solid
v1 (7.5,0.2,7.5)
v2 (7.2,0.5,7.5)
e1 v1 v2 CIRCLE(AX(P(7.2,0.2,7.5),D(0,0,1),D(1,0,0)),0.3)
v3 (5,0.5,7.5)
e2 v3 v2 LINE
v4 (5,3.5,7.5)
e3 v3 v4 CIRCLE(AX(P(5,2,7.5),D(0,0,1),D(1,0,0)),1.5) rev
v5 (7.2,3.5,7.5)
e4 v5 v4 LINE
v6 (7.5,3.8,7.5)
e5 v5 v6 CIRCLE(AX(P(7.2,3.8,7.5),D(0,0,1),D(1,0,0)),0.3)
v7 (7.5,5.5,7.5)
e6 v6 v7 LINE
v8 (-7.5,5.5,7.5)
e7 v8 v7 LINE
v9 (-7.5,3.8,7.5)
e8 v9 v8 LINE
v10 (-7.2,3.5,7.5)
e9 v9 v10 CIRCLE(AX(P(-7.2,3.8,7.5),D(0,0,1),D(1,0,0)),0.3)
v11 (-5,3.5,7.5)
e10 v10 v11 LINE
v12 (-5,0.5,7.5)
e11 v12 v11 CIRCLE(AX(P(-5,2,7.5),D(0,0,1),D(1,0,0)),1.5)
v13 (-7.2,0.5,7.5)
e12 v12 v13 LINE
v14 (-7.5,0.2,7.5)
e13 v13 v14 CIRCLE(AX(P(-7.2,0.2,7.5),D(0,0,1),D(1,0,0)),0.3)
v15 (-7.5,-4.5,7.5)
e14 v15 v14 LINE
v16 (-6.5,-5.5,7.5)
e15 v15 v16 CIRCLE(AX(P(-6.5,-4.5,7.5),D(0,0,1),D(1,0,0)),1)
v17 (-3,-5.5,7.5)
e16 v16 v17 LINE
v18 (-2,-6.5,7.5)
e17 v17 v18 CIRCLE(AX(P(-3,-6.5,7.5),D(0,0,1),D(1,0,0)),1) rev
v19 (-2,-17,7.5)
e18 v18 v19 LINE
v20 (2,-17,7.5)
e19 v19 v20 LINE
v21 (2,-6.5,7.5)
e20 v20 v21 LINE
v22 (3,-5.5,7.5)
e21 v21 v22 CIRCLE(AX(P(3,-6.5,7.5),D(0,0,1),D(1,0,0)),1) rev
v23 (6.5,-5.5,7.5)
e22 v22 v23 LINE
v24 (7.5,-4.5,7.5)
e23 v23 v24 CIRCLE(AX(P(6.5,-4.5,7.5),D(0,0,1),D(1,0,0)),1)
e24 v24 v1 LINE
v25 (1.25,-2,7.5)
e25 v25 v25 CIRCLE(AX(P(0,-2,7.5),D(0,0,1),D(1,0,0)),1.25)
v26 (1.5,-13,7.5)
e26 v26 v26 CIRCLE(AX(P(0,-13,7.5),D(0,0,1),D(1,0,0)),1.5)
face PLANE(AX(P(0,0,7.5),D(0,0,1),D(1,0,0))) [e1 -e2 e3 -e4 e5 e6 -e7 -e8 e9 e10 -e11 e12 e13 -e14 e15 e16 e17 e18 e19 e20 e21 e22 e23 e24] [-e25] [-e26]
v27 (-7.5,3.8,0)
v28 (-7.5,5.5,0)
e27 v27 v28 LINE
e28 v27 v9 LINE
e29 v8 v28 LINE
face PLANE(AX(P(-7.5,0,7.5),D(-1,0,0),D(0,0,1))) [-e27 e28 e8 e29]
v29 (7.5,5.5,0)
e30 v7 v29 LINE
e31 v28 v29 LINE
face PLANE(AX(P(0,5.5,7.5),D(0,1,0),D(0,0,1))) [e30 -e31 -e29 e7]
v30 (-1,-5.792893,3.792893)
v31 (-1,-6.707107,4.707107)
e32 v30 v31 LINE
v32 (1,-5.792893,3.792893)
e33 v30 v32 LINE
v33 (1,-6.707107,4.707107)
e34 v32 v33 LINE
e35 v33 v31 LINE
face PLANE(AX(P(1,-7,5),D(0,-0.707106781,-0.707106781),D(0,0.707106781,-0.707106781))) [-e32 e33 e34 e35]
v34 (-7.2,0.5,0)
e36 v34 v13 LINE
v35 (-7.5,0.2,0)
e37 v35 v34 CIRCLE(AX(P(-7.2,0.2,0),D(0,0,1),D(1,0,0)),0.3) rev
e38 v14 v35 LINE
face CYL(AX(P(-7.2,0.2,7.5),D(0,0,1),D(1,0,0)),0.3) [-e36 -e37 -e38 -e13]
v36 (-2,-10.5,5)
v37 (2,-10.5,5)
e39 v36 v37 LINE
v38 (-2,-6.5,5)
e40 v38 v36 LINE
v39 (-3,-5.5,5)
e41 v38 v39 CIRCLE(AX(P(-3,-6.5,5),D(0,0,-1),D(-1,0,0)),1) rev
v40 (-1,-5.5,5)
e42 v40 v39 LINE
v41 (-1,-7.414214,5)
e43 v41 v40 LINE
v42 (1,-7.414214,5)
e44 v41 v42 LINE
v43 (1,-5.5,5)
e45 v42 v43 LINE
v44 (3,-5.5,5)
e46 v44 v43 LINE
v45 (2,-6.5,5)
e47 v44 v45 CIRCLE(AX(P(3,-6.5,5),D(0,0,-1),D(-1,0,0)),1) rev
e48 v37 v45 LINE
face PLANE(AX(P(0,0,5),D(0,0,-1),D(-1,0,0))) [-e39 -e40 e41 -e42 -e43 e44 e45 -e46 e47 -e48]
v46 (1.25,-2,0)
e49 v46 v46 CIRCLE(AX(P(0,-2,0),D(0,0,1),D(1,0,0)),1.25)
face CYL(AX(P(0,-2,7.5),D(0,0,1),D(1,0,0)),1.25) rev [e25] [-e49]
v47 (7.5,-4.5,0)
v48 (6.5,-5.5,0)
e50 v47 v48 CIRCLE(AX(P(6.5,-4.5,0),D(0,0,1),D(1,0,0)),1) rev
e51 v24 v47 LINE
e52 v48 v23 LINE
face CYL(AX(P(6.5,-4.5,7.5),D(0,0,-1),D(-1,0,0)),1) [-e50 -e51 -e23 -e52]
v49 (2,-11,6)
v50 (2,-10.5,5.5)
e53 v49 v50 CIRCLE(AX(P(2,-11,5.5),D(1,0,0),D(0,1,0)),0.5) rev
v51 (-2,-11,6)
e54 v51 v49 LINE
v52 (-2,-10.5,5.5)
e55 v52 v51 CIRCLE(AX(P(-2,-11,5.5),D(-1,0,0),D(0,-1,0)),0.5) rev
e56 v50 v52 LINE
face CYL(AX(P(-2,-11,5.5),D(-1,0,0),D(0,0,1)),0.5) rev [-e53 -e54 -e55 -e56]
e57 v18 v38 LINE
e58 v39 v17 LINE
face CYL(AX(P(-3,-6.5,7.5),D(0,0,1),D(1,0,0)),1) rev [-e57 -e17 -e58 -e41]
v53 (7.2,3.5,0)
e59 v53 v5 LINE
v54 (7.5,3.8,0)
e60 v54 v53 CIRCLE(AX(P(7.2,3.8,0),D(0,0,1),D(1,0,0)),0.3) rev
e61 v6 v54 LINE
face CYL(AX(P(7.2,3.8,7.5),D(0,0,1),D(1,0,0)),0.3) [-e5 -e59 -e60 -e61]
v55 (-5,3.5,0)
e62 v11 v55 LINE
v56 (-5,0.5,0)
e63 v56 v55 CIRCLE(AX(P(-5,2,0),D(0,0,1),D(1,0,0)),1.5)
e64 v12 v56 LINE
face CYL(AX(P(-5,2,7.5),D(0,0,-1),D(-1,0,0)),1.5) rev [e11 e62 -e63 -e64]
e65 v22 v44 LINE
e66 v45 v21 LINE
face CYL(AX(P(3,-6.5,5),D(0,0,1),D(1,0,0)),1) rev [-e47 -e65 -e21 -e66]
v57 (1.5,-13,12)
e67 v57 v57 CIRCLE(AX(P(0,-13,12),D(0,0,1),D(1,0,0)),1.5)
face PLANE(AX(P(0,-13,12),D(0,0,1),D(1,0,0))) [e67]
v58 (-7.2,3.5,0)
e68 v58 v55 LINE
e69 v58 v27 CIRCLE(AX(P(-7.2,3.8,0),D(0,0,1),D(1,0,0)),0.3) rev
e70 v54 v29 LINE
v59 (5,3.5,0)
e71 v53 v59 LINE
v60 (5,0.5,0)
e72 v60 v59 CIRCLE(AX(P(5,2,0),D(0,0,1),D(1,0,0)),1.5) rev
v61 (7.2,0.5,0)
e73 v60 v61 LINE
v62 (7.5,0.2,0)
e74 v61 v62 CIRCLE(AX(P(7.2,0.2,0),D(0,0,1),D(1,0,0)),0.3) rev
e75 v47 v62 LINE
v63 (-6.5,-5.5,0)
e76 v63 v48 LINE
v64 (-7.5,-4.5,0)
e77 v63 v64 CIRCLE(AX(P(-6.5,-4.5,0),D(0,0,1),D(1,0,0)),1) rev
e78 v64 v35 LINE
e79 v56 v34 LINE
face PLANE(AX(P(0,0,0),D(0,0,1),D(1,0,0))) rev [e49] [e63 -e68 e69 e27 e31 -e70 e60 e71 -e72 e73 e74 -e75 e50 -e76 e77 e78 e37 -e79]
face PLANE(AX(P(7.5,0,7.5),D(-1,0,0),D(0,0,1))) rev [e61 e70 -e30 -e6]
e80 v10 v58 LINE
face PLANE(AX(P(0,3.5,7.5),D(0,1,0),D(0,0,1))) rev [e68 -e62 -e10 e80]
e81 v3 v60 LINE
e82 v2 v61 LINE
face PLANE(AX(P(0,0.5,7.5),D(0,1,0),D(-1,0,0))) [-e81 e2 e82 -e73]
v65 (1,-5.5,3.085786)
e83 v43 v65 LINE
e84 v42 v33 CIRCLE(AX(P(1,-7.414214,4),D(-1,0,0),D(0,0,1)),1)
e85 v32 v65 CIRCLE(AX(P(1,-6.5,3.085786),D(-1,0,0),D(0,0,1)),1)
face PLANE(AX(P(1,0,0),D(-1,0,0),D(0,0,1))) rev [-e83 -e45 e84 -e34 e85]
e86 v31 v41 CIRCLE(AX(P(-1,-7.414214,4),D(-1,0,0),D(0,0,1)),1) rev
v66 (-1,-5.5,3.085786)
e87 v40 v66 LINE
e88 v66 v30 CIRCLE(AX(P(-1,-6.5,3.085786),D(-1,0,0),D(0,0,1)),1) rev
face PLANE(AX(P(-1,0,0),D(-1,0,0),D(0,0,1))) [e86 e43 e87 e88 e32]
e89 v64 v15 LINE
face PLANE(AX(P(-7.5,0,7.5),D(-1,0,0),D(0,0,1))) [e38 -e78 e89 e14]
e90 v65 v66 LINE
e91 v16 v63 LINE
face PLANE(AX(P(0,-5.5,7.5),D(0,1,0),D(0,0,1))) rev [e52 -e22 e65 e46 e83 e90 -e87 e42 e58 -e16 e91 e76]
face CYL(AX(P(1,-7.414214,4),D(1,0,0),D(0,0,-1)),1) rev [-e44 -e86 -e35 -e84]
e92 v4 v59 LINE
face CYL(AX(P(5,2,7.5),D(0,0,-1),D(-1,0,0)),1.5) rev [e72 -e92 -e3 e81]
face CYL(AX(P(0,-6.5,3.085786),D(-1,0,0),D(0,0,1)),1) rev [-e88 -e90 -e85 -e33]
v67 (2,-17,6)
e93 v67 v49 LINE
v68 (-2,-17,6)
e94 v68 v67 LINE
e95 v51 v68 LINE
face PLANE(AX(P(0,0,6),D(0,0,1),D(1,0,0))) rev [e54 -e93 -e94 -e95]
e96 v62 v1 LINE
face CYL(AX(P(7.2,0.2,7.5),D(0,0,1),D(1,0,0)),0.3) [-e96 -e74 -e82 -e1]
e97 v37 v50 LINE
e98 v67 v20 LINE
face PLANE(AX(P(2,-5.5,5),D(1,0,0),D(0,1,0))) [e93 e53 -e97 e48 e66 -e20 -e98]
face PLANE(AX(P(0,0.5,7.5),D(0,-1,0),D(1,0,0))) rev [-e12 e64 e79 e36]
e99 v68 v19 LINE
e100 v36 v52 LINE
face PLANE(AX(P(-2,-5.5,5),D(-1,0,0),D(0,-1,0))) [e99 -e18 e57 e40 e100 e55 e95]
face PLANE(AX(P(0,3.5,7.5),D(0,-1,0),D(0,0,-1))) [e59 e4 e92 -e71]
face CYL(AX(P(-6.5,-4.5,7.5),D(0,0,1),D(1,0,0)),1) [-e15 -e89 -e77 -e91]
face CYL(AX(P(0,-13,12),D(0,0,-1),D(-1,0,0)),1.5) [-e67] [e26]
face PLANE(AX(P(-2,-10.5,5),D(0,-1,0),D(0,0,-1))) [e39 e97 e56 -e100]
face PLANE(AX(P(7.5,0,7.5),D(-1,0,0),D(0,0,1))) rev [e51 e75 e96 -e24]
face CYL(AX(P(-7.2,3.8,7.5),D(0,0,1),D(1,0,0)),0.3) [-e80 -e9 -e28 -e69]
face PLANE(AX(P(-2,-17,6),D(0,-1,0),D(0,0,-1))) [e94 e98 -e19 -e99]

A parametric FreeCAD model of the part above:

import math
import FreeCAD as App
import Part
import Sketcher
from FreeCAD import Vector


def edges_at(feature, points):
    """Names of the edges that pass closest to the given points."""
    edges = feature.Shape.Edges
    near = lambda p: min(range(len(edges)), key=lambda i: edges[i].distToShape(Part.Vertex(*p))[0])
    return sorted({f"Edge{near(p) + 1}" for p in points})

doc = App.newDocument("Part")
body = doc.addObject("PartDesign::Body", "Body")

# Sketch on XY plane
sketch1 = doc.addObject("Sketcher::SketchObject", "Sketch")
body.addObject(sketch1)
sketch1.AttachmentSupport = (doc.XY_Plane, [""])
sketch1.MapMode = "FlatFace"
sketch1.addGeometry([
    Part.LineSegment(Vector(-7.5, 0.5, 0), Vector(-7.5, -5.5, 0)),  # 0
    Part.LineSegment(Vector(-7.5, -5.5, 0), Vector(7.5, -5.5, 0)),  # 1
    Part.LineSegment(Vector(7.5, -5.5, 0), Vector(7.5, 0.5, 0)),  # 2
    Part.LineSegment(Vector(7.5, 0.5, 0), Vector(5, 0.5, 0)),  # 3
    Part.ArcOfCircle(Part.Circle(Vector(5, 2, 0), Vector(0, 0, 1), 1.5), math.radians(90), math.radians(270)),  # 4
    Part.LineSegment(Vector(5, 3.5, 0), Vector(7.5, 3.5, 0)),  # 5
    Part.LineSegment(Vector(7.5, 3.5, 0), Vector(7.5, 5.5, 0)),  # 6
    Part.LineSegment(Vector(7.5, 5.5, 0), Vector(-7.5, 5.5, 0)),  # 7
    Part.LineSegment(Vector(-7.5, 5.5, 0), Vector(-7.5, 3.5, 0)),  # 8
    Part.LineSegment(Vector(-7.5, 3.5, 0), Vector(-5, 3.5, 0)),  # 9
    Part.ArcOfCircle(Part.Circle(Vector(-5, 2, 0), Vector(0, 0, 1), 1.5), math.radians(-90), math.radians(90)),  # 10
    Part.LineSegment(Vector(-5, 0.5, 0), Vector(-7.5, 0.5, 0)),  # 11
], False)
sketch1.addConstraint([
    Sketcher.Constraint("Coincident", 0, 2, 1, 1),
    Sketcher.Constraint("Coincident", 1, 2, 2, 1),
    Sketcher.Constraint("Coincident", 2, 2, 3, 1),
    Sketcher.Constraint("Tangent", 3, 2, 4, 2),
    Sketcher.Constraint("Tangent", 4, 1, 5, 1),
    Sketcher.Constraint("Coincident", 5, 2, 6, 1),
    Sketcher.Constraint("Coincident", 6, 2, 7, 1),
    Sketcher.Constraint("Coincident", 7, 2, 8, 1),
    Sketcher.Constraint("Coincident", 8, 2, 9, 1),
    Sketcher.Constraint("Tangent", 9, 2, 10, 2),
    Sketcher.Constraint("Tangent", 10, 1, 11, 1),
    Sketcher.Constraint("Coincident", 11, 2, 0, 1),
    Sketcher.Constraint("Vertical", 0),
    Sketcher.Constraint("Horizontal", 1),
    Sketcher.Constraint("Vertical", 2),
    Sketcher.Constraint("Horizontal", 3),
    Sketcher.Constraint("Horizontal", 5),
    Sketcher.Constraint("Vertical", 6),
    Sketcher.Constraint("Horizontal", 7),
    Sketcher.Constraint("Vertical", 8),
    Sketcher.Constraint("Horizontal", 9),
    Sketcher.Constraint("Horizontal", 11),
    Sketcher.Constraint("Equal", 4, 10),
    Sketcher.Constraint("Symmetric", 0, 2, 6, 2, -1, 1),
    Sketcher.Constraint("Symmetric", 4, 3, 10, 3, -2),
    Sketcher.Constraint("Vertical", 2, 2, 5, 2),
    Sketcher.Constraint("Vertical", 0, 2, 7, 2),
    Sketcher.Constraint("Radius", 4, 1.5),
    Sketcher.Constraint("DistanceX", 1, 1, 1, 2, 15.0),
    Sketcher.Constraint("DistanceY", 0, 2, 0, 1, 6.0),
    Sketcher.Constraint("DistanceY", 6, 1, 6, 2, 2.0),
    Sketcher.Constraint("DistanceX", 3, 2, 3, 1, 2.5),
])
pad1 = doc.addObject("PartDesign::Pad", "Pad")
body.addObject(pad1)
pad1.Profile = sketch1
pad1.Length = 7.5
doc.recompute()

fillet = doc.addObject("PartDesign::Fillet", "Fillet")
body.addObject(fillet)
fillet.Base = (pad1, edges_at(pad1, [
    (7.5, 0.5, 3.75),
    (-7.5, 0.5, 3.75),
    (-7.5, 3.5, 3.75),
    (7.5, 3.5, 3.75),
]))
fillet.Radius = 0.3
doc.recompute()

fillet2 = doc.addObject("PartDesign::Fillet", "Fillet001")
body.addObject(fillet2)
fillet2.Base = (fillet, edges_at(fillet, [(7.5, -5.5, 3.75), (-7.5, -5.5, 3.75)]))
fillet2.Radius = 1

# Sketch on XY plane
sketch2 = doc.addObject("Sketcher::SketchObject", "Sketch001")
body.addObject(sketch2)
sketch2.AttachmentSupport = (doc.XY_Plane, [""])
sketch2.MapMode = "FlatFace"
sketch2.AttachmentOffset = App.Placement(Vector(0, 0, 7.5), App.Rotation())
sketch2.addGeometry(Part.Circle(Vector(0, -2, 0), Vector(0, 0, 1), 1.2), False)
sketch2.addConstraint([
    Sketcher.Constraint("PointOnObject", 0, 3, -2),
    Sketcher.Constraint("Diameter", 0, 2.5),
    Sketcher.Constraint("DistanceY", 0, 3, -1, 1, 2.0),
])
doc.recompute()
hole = doc.addObject("PartDesign::Hole", "Hole")
body.addObject(hole)
hole.Profile = sketch2
hole.ThreadType = "None"
hole.Diameter = 2.5
hole.DepthType = "ThroughAll"

# Sketch on XY plane
sketch3 = doc.addObject("Sketcher::SketchObject", "Sketch002")
body.addObject(sketch3)
sketch3.AttachmentSupport = (doc.XY_Plane, [""])
sketch3.MapMode = "FlatFace"
sketch3.AttachmentOffset = App.Placement(Vector(0, 0, 7.5), App.Rotation())
sketch3.addGeometry([
    Part.LineSegment(Vector(-2, -5.5, 0), Vector(-2, -10.5, 0)),
    Part.LineSegment(Vector(-2, -10.5, 0), Vector(2, -10.5, 0)),
    Part.LineSegment(Vector(2, -10.5, 0), Vector(2, -5.5, 0)),
    Part.LineSegment(Vector(2, -5.5, 0), Vector(-2, -5.5, 0)),
], False)
sketch3.addConstraint([
    Sketcher.Constraint("Coincident", 0, 2, 1, 1),
    Sketcher.Constraint("Coincident", 1, 2, 2, 1),
    Sketcher.Constraint("Coincident", 2, 2, 3, 1),
    Sketcher.Constraint("Coincident", 3, 2, 0, 1),
    Sketcher.Constraint("Vertical", 0),
    Sketcher.Constraint("Horizontal", 1),
    Sketcher.Constraint("Vertical", 2),
    Sketcher.Constraint("Horizontal", 3),
    Sketcher.Constraint("DistanceX", 1, 1, 1, 2, 4.0),
    Sketcher.Constraint("DistanceY", 0, 2, 0, 1, 5.0),
    Sketcher.Constraint("DistanceX", 0, 2, -1, 1, 2.0),
    Sketcher.Constraint("DistanceY", 0, 2, -1, 1, 10.5),
])
pad2 = doc.addObject("PartDesign::Pad", "Pad001")
body.addObject(pad2)
pad2.Profile = sketch3
pad2.Length = 2.5
pad2.Reversed = True

# Sketch on XY plane
sketch4 = doc.addObject("Sketcher::SketchObject", "Sketch003")
body.addObject(sketch4)
sketch4.AttachmentSupport = (doc.XY_Plane, [""])
sketch4.MapMode = "FlatFace"
sketch4.AttachmentOffset = App.Placement(Vector(0, 0, 7.5), App.Rotation())
sketch4.addGeometry([
    Part.LineSegment(Vector(-2, -10.5, 0), Vector(-2, -17, 0)),
    Part.LineSegment(Vector(-2, -17, 0), Vector(2, -17, 0)),
    Part.LineSegment(Vector(2, -17, 0), Vector(2, -10.5, 0)),
    Part.LineSegment(Vector(2, -10.5, 0), Vector(-2, -10.5, 0)),
], False)
sketch4.addConstraint([
    Sketcher.Constraint("Coincident", 0, 2, 1, 1),
    Sketcher.Constraint("Coincident", 1, 2, 2, 1),
    Sketcher.Constraint("Coincident", 2, 2, 3, 1),
    Sketcher.Constraint("Coincident", 3, 2, 0, 1),
    Sketcher.Constraint("Vertical", 0),
    Sketcher.Constraint("Horizontal", 1),
    Sketcher.Constraint("Vertical", 2),
    Sketcher.Constraint("Horizontal", 3),
    Sketcher.Constraint("DistanceX", 1, 1, 1, 2, 4.0),
    Sketcher.Constraint("DistanceY", 0, 2, 0, 1, 6.5),
    Sketcher.Constraint("DistanceX", 0, 2, -1, 1, 2.0),
    Sketcher.Constraint("DistanceY", 0, 2, -1, 1, 17.0),
])
pad3 = doc.addObject("PartDesign::Pad", "Pad002")
body.addObject(pad3)
pad3.Profile = sketch4
pad3.Length = 1.5
pad3.Reversed = True
doc.recompute()

fillet3 = doc.addObject("PartDesign::Fillet", "Fillet002")
body.addObject(fillet3)
fillet3.Base = (pad3, edges_at(pad3, [(0, -10.5, 6)]))
fillet3.Radius = 0.5

# Sketch on YZ plane
sketch5 = doc.addObject("Sketcher::SketchObject", "Sketch004")
body.addObject(sketch5)
sketch5.AttachmentSupport = (doc.YZ_Plane, [""])
sketch5.MapMode = "FlatFace"
sketch5.addGeometry([
    Part.LineSegment(Vector(-5.5, 3.5, 0), Vector(-7, 5, 0)),
    Part.LineSegment(Vector(-7, 5, 0), Vector(-5.5, 5, 0)),
    Part.LineSegment(Vector(-5.5, 5, 0), Vector(-5.5, 3.5, 0)),
], False)
sketch5.addConstraint([
    Sketcher.Constraint("Coincident", 0, 2, 1, 1),
    Sketcher.Constraint("Coincident", 1, 2, 2, 1),
    Sketcher.Constraint("Coincident", 2, 2, 0, 1),
    Sketcher.Constraint("Horizontal", 1),
    Sketcher.Constraint("Vertical", 2),
    Sketcher.Constraint("Equal", 1, 2),
    Sketcher.Constraint("DistanceX", 1, 1, 1, 2, 1.5),
    Sketcher.Constraint("DistanceX", 0, 2, -1, 1, 7.0),
    Sketcher.Constraint("DistanceY", -1, 1, 0, 2, 5.0),
])
pad4 = doc.addObject("PartDesign::Pad", "Pad003")
body.addObject(pad4)
pad4.Profile = sketch5
pad4.Type = "TwoLengths"
pad4.Length = 1
pad4.Length2 = 1
pad4.Reversed = True
doc.recompute()

fillet4 = doc.addObject("PartDesign::Fillet", "Fillet003")
body.addObject(fillet4)
fillet4.Base = (pad4, edges_at(pad4, [
    (0, -7, 5),
    (0, -5.5, 3.5),
    (-2, -5.5, 6.25),
    (2, -5.5, 6.25),
]))
fillet4.Radius = 1

# Sketch on XY plane
sketch6 = doc.addObject("Sketcher::SketchObject", "Sketch005")
body.addObject(sketch6)
sketch6.AttachmentSupport = (doc.XY_Plane, [""])
sketch6.MapMode = "FlatFace"
sketch6.AttachmentOffset = App.Placement(Vector(0, 0, 7.5), App.Rotation())
sketch6.addGeometry(Part.Circle(Vector(0, -13, 0), Vector(0, 0, 1), 1.5), False)
sketch6.addConstraint([
    Sketcher.Constraint("PointOnObject", 0, 3, -2),
    Sketcher.Constraint("Diameter", 0, 3.0),
    Sketcher.Constraint("DistanceY", 0, 3, -1, 1, 13.0),
])
pad5 = doc.addObject("PartDesign::Pad", "Pad004")
body.addObject(pad5)
pad5.Profile = sketch6
pad5.Length = 4.5

doc.recompute()
